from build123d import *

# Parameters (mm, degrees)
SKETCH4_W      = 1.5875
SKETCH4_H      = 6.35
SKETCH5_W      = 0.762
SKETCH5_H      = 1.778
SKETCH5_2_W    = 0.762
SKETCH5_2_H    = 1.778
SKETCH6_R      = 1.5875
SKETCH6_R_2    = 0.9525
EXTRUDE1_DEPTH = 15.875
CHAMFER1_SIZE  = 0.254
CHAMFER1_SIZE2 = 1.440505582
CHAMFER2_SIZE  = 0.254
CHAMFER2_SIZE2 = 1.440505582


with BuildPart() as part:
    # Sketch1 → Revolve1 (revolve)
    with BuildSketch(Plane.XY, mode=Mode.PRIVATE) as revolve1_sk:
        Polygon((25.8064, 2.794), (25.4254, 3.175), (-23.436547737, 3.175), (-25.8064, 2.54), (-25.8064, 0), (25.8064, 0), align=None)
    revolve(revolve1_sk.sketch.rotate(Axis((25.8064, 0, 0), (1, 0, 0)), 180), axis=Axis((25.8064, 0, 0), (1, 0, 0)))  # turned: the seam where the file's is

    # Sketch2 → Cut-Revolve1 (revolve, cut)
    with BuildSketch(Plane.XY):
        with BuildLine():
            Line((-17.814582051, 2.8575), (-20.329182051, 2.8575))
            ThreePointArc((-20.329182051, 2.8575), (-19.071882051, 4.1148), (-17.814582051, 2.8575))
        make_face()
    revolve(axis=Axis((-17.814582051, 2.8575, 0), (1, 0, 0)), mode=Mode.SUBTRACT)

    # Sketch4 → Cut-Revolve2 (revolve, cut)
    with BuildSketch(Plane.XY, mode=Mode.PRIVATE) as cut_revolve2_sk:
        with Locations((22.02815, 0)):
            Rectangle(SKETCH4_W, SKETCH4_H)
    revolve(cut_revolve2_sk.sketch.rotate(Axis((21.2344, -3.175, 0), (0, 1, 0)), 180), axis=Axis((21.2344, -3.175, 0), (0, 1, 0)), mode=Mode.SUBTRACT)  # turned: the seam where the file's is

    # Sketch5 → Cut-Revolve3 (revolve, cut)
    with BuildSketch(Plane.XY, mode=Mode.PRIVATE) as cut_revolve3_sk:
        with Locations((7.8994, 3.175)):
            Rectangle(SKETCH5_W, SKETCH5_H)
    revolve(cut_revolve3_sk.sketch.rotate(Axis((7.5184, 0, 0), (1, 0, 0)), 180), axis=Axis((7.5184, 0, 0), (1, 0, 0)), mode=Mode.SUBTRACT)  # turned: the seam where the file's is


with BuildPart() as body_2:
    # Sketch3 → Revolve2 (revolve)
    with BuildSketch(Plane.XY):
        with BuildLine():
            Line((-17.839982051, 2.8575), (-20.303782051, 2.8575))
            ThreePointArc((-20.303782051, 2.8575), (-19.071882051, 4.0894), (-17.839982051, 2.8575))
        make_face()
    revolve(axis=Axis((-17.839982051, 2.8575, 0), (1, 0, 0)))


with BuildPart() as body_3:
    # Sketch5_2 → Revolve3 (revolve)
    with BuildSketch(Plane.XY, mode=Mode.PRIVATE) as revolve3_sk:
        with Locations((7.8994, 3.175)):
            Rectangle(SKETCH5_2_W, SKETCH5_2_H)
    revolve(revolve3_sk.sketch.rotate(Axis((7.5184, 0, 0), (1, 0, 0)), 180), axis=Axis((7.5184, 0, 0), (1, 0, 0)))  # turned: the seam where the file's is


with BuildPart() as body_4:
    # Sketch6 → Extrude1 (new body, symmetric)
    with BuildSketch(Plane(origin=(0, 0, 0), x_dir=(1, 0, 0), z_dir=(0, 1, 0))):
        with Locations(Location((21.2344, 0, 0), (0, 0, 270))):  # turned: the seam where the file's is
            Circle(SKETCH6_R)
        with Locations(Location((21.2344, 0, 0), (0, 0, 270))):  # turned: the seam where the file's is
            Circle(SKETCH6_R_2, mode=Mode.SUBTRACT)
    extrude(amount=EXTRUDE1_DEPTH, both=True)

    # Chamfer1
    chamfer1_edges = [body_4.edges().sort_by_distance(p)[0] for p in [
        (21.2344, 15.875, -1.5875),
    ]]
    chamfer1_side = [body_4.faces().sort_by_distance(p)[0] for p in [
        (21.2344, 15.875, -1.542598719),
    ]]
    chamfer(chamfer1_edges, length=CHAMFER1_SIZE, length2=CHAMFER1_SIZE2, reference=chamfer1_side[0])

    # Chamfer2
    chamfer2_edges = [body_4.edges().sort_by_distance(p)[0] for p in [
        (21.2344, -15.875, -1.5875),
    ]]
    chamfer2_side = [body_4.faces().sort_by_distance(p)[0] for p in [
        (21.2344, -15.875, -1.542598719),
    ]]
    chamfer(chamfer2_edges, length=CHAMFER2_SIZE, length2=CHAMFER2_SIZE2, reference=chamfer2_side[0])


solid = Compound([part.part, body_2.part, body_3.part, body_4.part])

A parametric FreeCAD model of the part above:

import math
import FreeCAD as App
import Part
import Sketcher

V = App.Vector
Q = App.Units.Quantity


def edges_at(feature, points):
    """Names of the edges that pass closest to the given points."""
    edges = feature.Shape.Edges
    near = lambda p: min(range(len(edges)), key=lambda i: edges[i].distToShape(Part.Vertex(*p))[0])
    return sorted({f"Edge{near(p) + 1}" for p in points})


def add_polygon(sketch, points):
    """Adds a closed chain of lines whose ends are joined by coincident constraints."""
    first, n = sketch.GeometryCount, len(points)
    for a, b in zip(points, points[1:] + points[:1]):
        sketch.addGeometry(Part.LineSegment(App.Vector(*a, 0), App.Vector(*b, 0)), False)
    for i in range(n):
        sketch.addConstraint(Sketcher.Constraint("Coincident", first + i, 2, first + (i + 1) % n, 1))

doc = App.newDocument("Part")
params = doc.addObject("Spreadsheet::Sheet", "Params")
for row, (alias, value) in enumerate([
    ("sketch1_height", "0.1 in"),
    ("sketch1_height2", "0.11 in"),
    ("sketch1_width", "2.032 in"),
    ("revolution_angle", "360 deg"),
    ("groove_angle", "360 deg"),
    ("sketch3_height", "0.25 in"),
    ("sketch3_width", "0.0625 in"),
    ("groove2_angle", "360 deg"),
    ("sketch4_width", "0.03 in"),
    ("sketch4_height", "0.07 in"),
    ("groove3_angle", "360 deg"),
    ("revolution2_angle", "360 deg"),
    ("sketch6_width", "0.03 in"),
    ("sketch6_height", "0.07 in"),
    ("revolution3_angle", "360 deg"),
    ("sketch7_diameter", "0.125 in"),
    ("sketch7_diameter2", "0.075 in"),
    ("pad1_length", "1.25 in"),
    ("chamfer_size", "0.01 in"),
    ("chamfer_size2", "1.440506 mm"),
    ("chamfer2_size", "0.01 in"),
    ("chamfer2_size2", "1.440506 mm"),
], start=1):
    params.set(f"A{row}", alias)
    params.set(f"B{row}", "=" + value)
    params.setAlias(f"B{row}", alias)

body = doc.addObject("PartDesign::Body", "Body")

# Sketch on XY plane
sketch1 = body.newObject("Sketcher::SketchObject", "Sketch")
sketch1.AttachmentSupport = (doc.getObject("XY_Plane"), [""])
sketch1.MapMode = "FlatFace"
add_polygon(sketch1, [(25.8064, 2.794), (25.4254, 3.175), (-23.436548, 3.175), (-25.8064, 2.54), (-25.8064, 0), (25.8064, 0)])  # lines 0-5
sketch1.addConstraint(Sketcher.Constraint("Horizontal", 1))
sketch1.addConstraint(Sketcher.Constraint("Vertical", 3))
sketch1.addConstraint(Sketcher.Constraint("Horizontal", 4))
sketch1.addConstraint(Sketcher.Constraint("Vertical", 5))
sketch1.addConstraint(Sketcher.Constraint("Symmetric", 3, 2, 4, 2, -1, 1))
sketch1.addConstraint(Sketcher.Constraint("DistanceY", 3, 2, 3, 1, Q("0.1 in")))
sketch1.addConstraint(Sketcher.Constraint("Angle", 0, Q("135 deg")))
sketch1.addConstraint(Sketcher.Constraint("Angle", 2, Q("-165 deg")))
sketch1.addConstraint(Sketcher.Constraint("DistanceY", 5, 1, 5, 2, Q("0.11 in")))
sketch1.addConstraint(Sketcher.Constraint("DistanceX", 4, 1, 4, 2, Q("2.032 in")))
sketch1.addConstraint(Sketcher.Constraint("DistanceX", -1, 1, 0, 2, Q("1.001 in")))
sketch1.setExpression("Constraints[11]", "Params.sketch1_height")
sketch1.setExpression("Constraints[14]", "Params.sketch1_height2")
sketch1.setExpression("Constraints[15]", "Params.sketch1_width")
revolution = body.newObject("PartDesign::Revolution", "Revolution")
revolution.Profile = sketch1
revolution.ReferenceAxis = (sketch1, ["H_Axis"])
revolution.setExpression("Angle", "Params.revolution_angle")

# Sketch on XY plane
sketch2 = body.newObject("Sketcher::SketchObject", "Sketch001")
sketch2.AttachmentSupport = (doc.getObject("XY_Plane"), [""])
sketch2.MapMode = "FlatFace"
sketch2.addGeometry(Part.LineSegment(V(-20.329182, 2.8575, 0), V(-17.814582, 2.8575, 0)), False)
sketch2.addGeometry(Part.ArcOfCircle(Part.Circle(V(-19.071882, 2.8575, 0), V(0, 0, 1), 1.2573), math.radians(0), math.radians(180)), False)
sketch2.addGeometry(Part.LineSegment(V(-20.329182, 2.8575, 0), V(-17.814582, 2.8575, 0)), True)  # axis
sketch2.addConstraint(Sketcher.Constraint("Coincident", 0, 1, 1, 2))
sketch2.addConstraint(Sketcher.Constraint("Coincident", 1, 1, 0, 2))
sketch2.addConstraint(Sketcher.Constraint("Horizontal", 0))
sketch2.addConstraint(Sketcher.Constraint("Horizontal", 2))
sketch2.addConstraint(Sketcher.Constraint("Coincident", 2, 1, 0, 1))
sketch2.addConstraint(Sketcher.Constraint("Horizontal", 1, 3, 0, 1))
sketch2.addConstraint(Sketcher.Constraint("Equal", 0, 2))
sketch2.addConstraint(Sketcher.Constraint("Radius", 1, Q("0.0495 in")))
sketch2.addConstraint(Sketcher.Constraint("DistanceY", -1, 1, 1, 3, Q("0.1125 in")))
sketch2.addConstraint(Sketcher.Constraint("DistanceX", 1, 3, -1, 1, Q("19.071882 mm")))
groove = body.newObject("PartDesign::Groove", "Groove")
groove.Profile = sketch2
groove.ReferenceAxis = (sketch2, ["Axis0"])
groove.setExpression("Angle", "Params.groove_angle")

# Sketch on XY plane
sketch3 = body.newObject("Sketcher::SketchObject", "Sketch002")
sketch3.AttachmentSupport = (doc.getObject("XY_Plane"), [""])
sketch3.MapMode = "FlatFace"
add_polygon(sketch3, [(21.2344, 3.175), (21.2344, -3.175), (22.8219, -3.175), (22.8219, 3.175)])  # lines 0-3
sketch3.addGeometry(Part.LineSegment(V(21.2344, -3.175, 0), V(21.2344, 3.175, 0)), True)  # axis
sketch3.addConstraint(Sketcher.Constraint("Vertical", 0))
sketch3.addConstraint(Sketcher.Constraint("Horizontal", 1))
sketch3.addConstraint(Sketcher.Constraint("Vertical", 2))
sketch3.addConstraint(Sketcher.Constraint("Horizontal", 3))
sketch3.addConstraint(Sketcher.Constraint("Vertical", 4))
sketch3.addConstraint(Sketcher.Constraint("Coincident", 4, 1, 0, 2))
sketch3.addConstraint(Sketcher.Constraint("Horizontal", 2, 2, 4, 2))
sketch3.addConstraint(Sketcher.Constraint("DistanceY", 0, 2, 0, 1, Q("0.25 in")))
sketch3.addConstraint(Sketcher.Constraint("DistanceX", 1, 1, 1, 2, Q("0.0625 in")))
sketch3.addConstraint(Sketcher.Constraint("DistanceX", -1, 1, 0, 2, Q("0.836 in")))
sketch3.addConstraint(Sketcher.Constraint("DistanceY", 0, 2, -1, 1, Q("0.125 in")))
sketch3.setExpression("Constraints[11]", "Params.sketch3_height")
sketch3.setExpression("Constraints[12]", "Params.sketch3_width")
groove2 = body.newObject("PartDesign::Groove", "Groove001")
groove2.Profile = sketch3
groove2.ReferenceAxis = (sketch3, ["Axis0"])
groove2.setExpression("Angle", "Params.groove2_angle")

# Sketch on XY plane
sketch4 = body.newObject("Sketcher::SketchObject", "Sketch003")
sketch4.AttachmentSupport = (doc.getObject("XY_Plane"), [""])
sketch4.MapMode = "FlatFace"
add_polygon(sketch4, [(7.5184, 4.064), (7.5184, 2.286), (8.2804, 2.286), (8.2804, 4.064)])  # lines 0-3
sketch4.addConstraint(Sketcher.Constraint("Vertical", 0))
sketch4.addConstraint(Sketcher.Constraint("Horizontal", 1))
sketch4.addConstraint(Sketcher.Constraint("Vertical", 2))
sketch4.addConstraint(Sketcher.Constraint("Horizontal", 3))
sketch4.addConstraint(Sketcher.Constraint("DistanceX", 1, 1, 1, 2, Q("0.03 in")))
sketch4.addConstraint(Sketcher.Constraint("DistanceY", 0, 2, 0, 1, Q("0.07 in")))
sketch4.addConstraint(Sketcher.Constraint("DistanceY", -1, 1, 0, 2, Q("0.09 in")))
sketch4.addConstraint(Sketcher.Constraint("DistanceX", -1, 1, 0, 2, Q("0.296 in")))
sketch4.setExpression("Constraints[8]", "Params.sketch4_width")
sketch4.setExpression("Constraints[9]", "Params.sketch4_height")
groove3 = body.newObject("PartDesign::Groove", "Groove002")
groove3.Profile = sketch4
groove3.ReferenceAxis = (sketch4, ["H_Axis"])
groove3.setExpression("Angle", "Params.groove3_angle")
body2 = doc.addObject("PartDesign::Body", "Body001")

# Sketch on XY plane
sketch5 = body2.newObject("Sketcher::SketchObject", "Sketch004")
sketch5.AttachmentSupport = (doc.getObject("XY_Plane001"), [""])
sketch5.MapMode = "FlatFace"
sketch5.addGeometry(Part.LineSegment(V(-20.303782, 2.8575, 0), V(-17.839982, 2.8575, 0)), False)
sketch5.addGeometry(Part.ArcOfCircle(Part.Circle(V(-19.071882, 2.8575, 0), V(0, 0, 1), 1.2319), math.radians(0), math.radians(180)), False)
sketch5.addGeometry(Part.LineSegment(V(-20.303782, 2.8575, 0), V(-17.839982, 2.8575, 0)), True)  # axis
sketch5.addConstraint(Sketcher.Constraint("Coincident", 0, 1, 1, 2))
sketch5.addConstraint(Sketcher.Constraint("Coincident", 1, 1, 0, 2))
sketch5.addConstraint(Sketcher.Constraint("Horizontal", 0))
sketch5.addConstraint(Sketcher.Constraint("Horizontal", 2))
sketch5.addConstraint(Sketcher.Constraint("Coincident", 2, 1, 0, 1))
sketch5.addConstraint(Sketcher.Constraint("Horizontal", 1, 3, 0, 1))
sketch5.addConstraint(Sketcher.Constraint("Equal", 0, 2))
sketch5.addConstraint(Sketcher.Constraint("Radius", 1, Q("0.0485 in")))
sketch5.addConstraint(Sketcher.Constraint("DistanceY", -1, 1, 1, 3, Q("0.1125 in")))
sketch5.addConstraint(Sketcher.Constraint("DistanceX", 1, 3, -1, 1, Q("19.071882 mm")))
revolution2 = body2.newObject("PartDesign::Revolution", "Revolution001")
revolution2.Profile = sketch5
revolution2.ReferenceAxis = (sketch5, ["Axis0"])
revolution2.setExpression("Angle", "Params.revolution2_angle")
body3 = doc.addObject("PartDesign::Body", "Body002")

# Sketch on XY plane
sketch6 = body3.newObject("Sketcher::SketchObject", "Sketch005")
sketch6.AttachmentSupport = (doc.getObject("XY_Plane002"), [""])
sketch6.MapMode = "FlatFace"
add_polygon(sketch6, [(7.5184, 4.064), (7.5184, 2.286), (8.2804, 2.286), (8.2804, 4.064)])  # lines 0-3
sketch6.addConstraint(Sketcher.Constraint("Vertical", 0))
sketch6.addConstraint(Sketcher.Constraint("Horizontal", 1))
sketch6.addConstraint(Sketcher.Constraint("Vertical", 2))
sketch6.addConstraint(Sketcher.Constraint("Horizontal", 3))
sketch6.addConstraint(Sketcher.Constraint("DistanceX", 1, 1, 1, 2, Q("0.03 in")))
sketch6.addConstraint(Sketcher.Constraint("DistanceY", 0, 2, 0, 1, Q("0.07 in")))
sketch6.addConstraint(Sketcher.Constraint("DistanceY", -1, 1, 0, 2, Q("0.09 in")))
sketch6.addConstraint(Sketcher.Constraint("DistanceX", -1, 1, 0, 2, Q("0.296 in")))
sketch6.setExpression("Constraints[8]", "Params.sketch6_width")
sketch6.setExpression("Constraints[9]", "Params.sketch6_height")
revolution3 = body3.newObject("PartDesign::Revolution", "Revolution002")
revolution3.Profile = sketch6
revolution3.ReferenceAxis = (sketch6, ["H_Axis"])
revolution3.setExpression("Angle", "Params.revolution3_angle")
body4 = doc.addObject("PartDesign::Body", "Body003")

# Sketch on XZ plane
sketch7 = body4.newObject("Sketcher::SketchObject", "Sketch006")
sketch7.AttachmentSupport = (doc.getObject("XZ_Plane003"), [""])
sketch7.MapMode = "FlatFace"
sketch7.addGeometry(Part.Circle(V(21.2344, 0, 0), V(0, 0, 1), 1.5875), False)
sketch7.addGeometry(Part.Circle(V(21.2344, 0, 0), V(0, 0, 1), 0.9525), False)
sketch7.addConstraint(Sketcher.Constraint("Coincident", 1, 3, 0, 3))
sketch7.addConstraint(Sketcher.Constraint("PointOnObject", 0, 3, -1))
sketch7.addConstraint(Sketcher.Constraint("Diameter", 0, Q("0.125 in")))
sketch7.addConstraint(Sketcher.Constraint("Diameter", 1, Q("0.075 in")))
sketch7.addConstraint(Sketcher.Constraint("DistanceX", -1, 1, 0, 3, Q("0.836 in")))
sketch7.setExpression("Constraints[2]", "Params.sketch7_diameter")
sketch7.setExpression("Constraints[3]", "Params.sketch7_diameter2")
pad1 = body4.newObject("PartDesign::Pad", "Pad")
pad1.Profile = sketch7
pad1.setExpression("Length", "Params.pad1_length")
pad1.Midplane = True
doc.recompute()

chamfer = body4.newObject("PartDesign::Chamfer", "Chamfer")
chamfer.Base = (pad1, edges_at(pad1, [(21.234, 15.875, -1.587)]))
chamfer.ChamferType = "Two distances"
chamfer.setExpression("Size", "Params.chamfer_size")
chamfer.setExpression("Size2", "Params.chamfer_size2")
chamfer.FlipDirection = True
doc.recompute()

chamfer2 = body4.newObject("PartDesign::Chamfer", "Chamfer001")
chamfer2.Base = (chamfer, edges_at(chamfer, [(21.234, -15.875, -1.587)]))
chamfer2.ChamferType = "Two distances"
chamfer2.setExpression("Size", "Params.chamfer2_size")
chamfer2.setExpression("Size2", "Params.chamfer2_size2")
chamfer2.FlipDirection = True

doc.recompute()
